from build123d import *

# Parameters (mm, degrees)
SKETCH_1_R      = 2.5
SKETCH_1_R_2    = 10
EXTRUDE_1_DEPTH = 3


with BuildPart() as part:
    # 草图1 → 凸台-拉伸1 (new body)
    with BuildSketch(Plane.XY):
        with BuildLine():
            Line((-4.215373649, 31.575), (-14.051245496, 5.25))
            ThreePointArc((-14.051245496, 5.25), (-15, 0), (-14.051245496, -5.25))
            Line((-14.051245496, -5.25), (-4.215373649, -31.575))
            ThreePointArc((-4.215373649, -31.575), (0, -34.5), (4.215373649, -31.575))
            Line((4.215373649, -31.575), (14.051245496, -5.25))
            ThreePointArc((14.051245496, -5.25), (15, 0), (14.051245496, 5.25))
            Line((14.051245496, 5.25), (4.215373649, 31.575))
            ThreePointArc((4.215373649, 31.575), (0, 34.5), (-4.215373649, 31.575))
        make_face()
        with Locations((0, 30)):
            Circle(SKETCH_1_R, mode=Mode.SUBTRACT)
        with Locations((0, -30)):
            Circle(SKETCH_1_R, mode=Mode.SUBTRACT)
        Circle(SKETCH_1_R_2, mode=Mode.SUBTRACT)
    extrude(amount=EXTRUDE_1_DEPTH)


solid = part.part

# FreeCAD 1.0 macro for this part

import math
import FreeCAD as App
import Part
import Sketcher

doc = App.newDocument("Part")
params = doc.addObject("Spreadsheet::Sheet", "Params")
for row, (alias, value) in enumerate([
    ("sketch1_diameter", "5 mm"),
    ("sketch1_diameter2", "20 mm"),
    ("sketch1_radius", "15 mm"),
    ("sketch1_radius2", "4.5 mm"),
    ("pad1_length", "3 mm"),
], start=1):
    params.set(f"A{row}", alias)
    params.set(f"B{row}", "=" + value)
    params.setAlias(f"B{row}", alias)

body = doc.addObject("PartDesign::Body", "Body")

sketch1 = body.newObject("Sketcher::SketchObject", "Sketch")
sketch1.AttachmentSupport = (doc.getObject("XY_Plane"), [""])
sketch1.MapMode = "FlatFace"
sketch1.addGeometry(Part.LineSegment(App.Vector(-4.215374, 31.575, 0), App.Vector(-14.051245, 5.25, 0)), False)
sketch1.addGeometry(Part.ArcOfCircle(Part.Circle(App.Vector(0, 0, 0), App.Vector(0, 0, 1), 15), math.radians(159.512685), math.radians(200.487315)), False)
sketch1.addGeometry(Part.LineSegment(App.Vector(-14.051245, -5.25, 0), App.Vector(-4.215374, -31.575, 0)), False)
sketch1.addGeometry(Part.ArcOfCircle(Part.Circle(App.Vector(0, -30, 0), App.Vector(0, 0, 1), 4.5), math.radians(-159.512685), math.radians(-20.487315)), False)
sketch1.addGeometry(Part.LineSegment(App.Vector(4.215374, -31.575, 0), App.Vector(14.051245, -5.25, 0)), False)
sketch1.addGeometry(Part.ArcOfCircle(Part.Circle(App.Vector(0, 0, 0), App.Vector(0, 0, 1), 15), math.radians(-20.487315), math.radians(20.487315)), False)
sketch1.addGeometry(Part.LineSegment(App.Vector(14.051245, 5.25, 0), App.Vector(4.215374, 31.575, 0)), False)
sketch1.addGeometry(Part.ArcOfCircle(Part.Circle(App.Vector(0, 30, 0), App.Vector(0, 0, 1), 4.5), math.radians(20.487315), math.radians(159.512685)), False)
sketch1.addGeometry(Part.Circle(App.Vector(0, -30, 0), App.Vector(0, 0, 1), 2.5), False)
sketch1.addGeometry(Part.Circle(App.Vector(0, 0, 0), App.Vector(0, 0, 1), 10), False)
sketch1.addGeometry(Part.Circle(App.Vector(0, 30, 0), App.Vector(0, 0, 1), 2.5), False)
sketch1.addConstraint(Sketcher.Constraint("Tangent", 0, 2, 1, 1))
sketch1.addConstraint(Sketcher.Constraint("Tangent", 1, 2, 2, 1))
sketch1.addConstraint(Sketcher.Constraint("Tangent", 2, 2, 3, 1))
sketch1.addConstraint(Sketcher.Constraint("Tangent", 3, 2, 4, 1))
sketch1.addConstraint(Sketcher.Constraint("Tangent", 4, 2, 5, 1))
sketch1.addConstraint(Sketcher.Constraint("Tangent", 5, 2, 6, 1))
sketch1.addConstraint(Sketcher.Constraint("Tangent", 6, 2, 7, 1))
sketch1.addConstraint(Sketcher.Constraint("Tangent", 7, 2, 0, 1))
sketch1.addConstraint(Sketcher.Constraint("Coincident", 1, 3, -1, 1))
sketch1.addConstraint(Sketcher.Constraint("Coincident", 5, 3, -1, 1))
sketch1.addConstraint(Sketcher.Constraint("Coincident", 9, 3, -1, 1))
sketch1.addConstraint(Sketcher.Constraint("Coincident", 8, 3, 3, 3))
sketch1.addConstraint(Sketcher.Constraint("Coincident", 10, 3, 7, 3))
sketch1.addConstraint(Sketcher.Constraint("Equal", 1, 5))
sketch1.addConstraint(Sketcher.Constraint("Equal", 3, 7))
sketch1.addConstraint(Sketcher.Constraint("Equal", 8, 10))
sketch1.addConstraint(Sketcher.Constraint("Symmetric", 3, 3, 7, 3, -1, 1))
sketch1.addConstraint(Sketcher.Constraint("PointOnObject", 3, 3, -2))
sketch1.addConstraint(Sketcher.Constraint("Diameter", 8, 5.0))
sketch1.addConstraint(Sketcher.Constraint("Diameter", 9, 20.0))
sketch1.addConstraint(Sketcher.Constraint("Radius", 1, 15.0))
sketch1.addConstraint(Sketcher.Constraint("Radius", 3, 4.5))
sketch1.addConstraint(Sketcher.Constraint("DistanceY", 3, 3, -1, 1, 30.0))
sketch1.setExpression("Constraints[18]", "Params.sketch1_diameter")
sketch1.setExpression("Constraints[19]", "Params.sketch1_diameter2")
sketch1.setExpression("Constraints[20]", "Params.sketch1_radius")
sketch1.setExpression("Constraints[21]", "Params.sketch1_radius2")
pad1 = body.newObject("PartDesign::Pad", "Pad")
pad1.Profile = sketch1
pad1.setExpression("Length", "Params.pad1_length")

doc.recompute()
